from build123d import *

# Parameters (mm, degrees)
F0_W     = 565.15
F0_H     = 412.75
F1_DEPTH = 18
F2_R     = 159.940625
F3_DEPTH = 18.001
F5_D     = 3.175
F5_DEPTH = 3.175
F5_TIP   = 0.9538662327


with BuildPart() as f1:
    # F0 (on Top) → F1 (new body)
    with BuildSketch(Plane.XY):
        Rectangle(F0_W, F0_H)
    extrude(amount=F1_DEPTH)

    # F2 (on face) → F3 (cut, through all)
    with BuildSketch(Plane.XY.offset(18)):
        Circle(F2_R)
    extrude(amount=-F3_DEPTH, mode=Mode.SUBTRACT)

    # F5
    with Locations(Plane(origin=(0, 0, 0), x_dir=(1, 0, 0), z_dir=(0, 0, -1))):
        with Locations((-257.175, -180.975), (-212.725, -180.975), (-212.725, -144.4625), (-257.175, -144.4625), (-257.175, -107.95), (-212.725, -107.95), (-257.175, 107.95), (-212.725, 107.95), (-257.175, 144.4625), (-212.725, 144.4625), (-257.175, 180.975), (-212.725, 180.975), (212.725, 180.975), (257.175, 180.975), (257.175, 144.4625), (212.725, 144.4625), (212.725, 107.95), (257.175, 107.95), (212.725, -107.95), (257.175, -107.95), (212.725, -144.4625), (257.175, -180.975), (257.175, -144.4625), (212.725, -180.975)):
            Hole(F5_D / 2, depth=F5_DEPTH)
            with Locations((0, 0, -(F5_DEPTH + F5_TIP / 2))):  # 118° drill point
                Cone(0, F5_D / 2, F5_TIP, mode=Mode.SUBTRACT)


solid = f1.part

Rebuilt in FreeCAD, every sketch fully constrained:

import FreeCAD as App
import Part
import Sketcher
Q = App.Units.Quantity


def add_polygon(sketch, points):
    """Adds a closed chain of lines whose ends are joined by coincident constraints."""
    first, n = sketch.GeometryCount, len(points)
    for a, b in zip(points, points[1:] + points[:1]):
        sketch.addGeometry(Part.LineSegment(App.Vector(*a, 0), App.Vector(*b, 0)), False)
    for i in range(n):
        sketch.addConstraint(Sketcher.Constraint("Coincident", first + i, 2, first + (i + 1) % n, 1))

doc = App.newDocument("Part")
body = doc.addObject("PartDesign::Body", "Body")

# Sketch on XY plane
sketch1 = doc.addObject("Sketcher::SketchObject", "Sketch")
body.addObject(sketch1)
sketch1.AttachmentSupport = (doc.XY_Plane, [""])
sketch1.MapMode = "FlatFace"
add_polygon(sketch1, [(-282.575, 206.375), (-282.575, -206.375), (282.575, -206.375), (282.575, 206.375)])  # lines 0-3
sketch1.addConstraint(Sketcher.Constraint("Vertical", 0))
sketch1.addConstraint(Sketcher.Constraint("Horizontal", 1))
sketch1.addConstraint(Sketcher.Constraint("Vertical", 2))
sketch1.addConstraint(Sketcher.Constraint("Horizontal", 3))
sketch1.addConstraint(Sketcher.Constraint("Symmetric", 0, 2, 2, 2, -1, 1))
sketch1.addConstraint(Sketcher.Constraint("DistanceX", 1, 1, 1, 2, Q("22.25 in")))
sketch1.addConstraint(Sketcher.Constraint("DistanceY", 0, 2, 0, 1, Q("16.25 in")))
pad1 = doc.addObject("PartDesign::Pad", "Pad")
body.addObject(pad1)
pad1.Profile = sketch1
pad1.Length = 18

# Sketch on XY plane
sketch2 = doc.addObject("Sketcher::SketchObject", "Sketch001")
body.addObject(sketch2)
sketch2.AttachmentSupport = (doc.XY_Plane, [""])
sketch2.MapMode = "FlatFace"
sketch2.AttachmentOffset = App.Placement(App.Vector(0, 0, 18), App.Rotation())
sketch2.addGeometry(Part.Circle(App.Vector(0, 0, 0), App.Vector(0, 0, 1), 159.940625), False)
sketch2.addConstraint(Sketcher.Constraint("Coincident", 0, 3, -1, 1))
sketch2.addConstraint(Sketcher.Constraint("Diameter", 0, Q("12.59375 in")))
pocket1 = doc.addObject("PartDesign::Pocket", "Pocket")
body.addObject(pocket1)
pocket1.Profile = sketch2
pocket1.Type = "ThroughAll"

# Sketch on XY plane
sketch3 = doc.addObject("Sketcher::SketchObject", "Sketch002")
body.addObject(sketch3)
sketch3.AttachmentSupport = (doc.XY_Plane, [""])
sketch3.MapMode = "FlatFace"
sketch3.addGeometry(Part.Circle(App.Vector(-257.175, 180.975, 0), App.Vector(0, 0, 1), 1.5875), False)
sketch3.addGeometry(Part.Circle(App.Vector(-212.725, 180.975, 0), App.Vector(0, 0, 1), 1.5875), False)
sketch3.addGeometry(Part.Circle(App.Vector(-212.725, 144.4625, 0), App.Vector(0, 0, 1), 1.5875), False)
sketch3.addGeometry(Part.Circle(App.Vector(-257.175, 144.4625, 0), App.Vector(0, 0, 1), 1.5875), False)
sketch3.addGeometry(Part.Circle(App.Vector(-257.175, 107.95, 0), App.Vector(0, 0, 1), 1.5875), False)
sketch3.addGeometry(Part.Circle(App.Vector(-212.725, 107.95, 0), App.Vector(0, 0, 1), 1.5875), False)
sketch3.addGeometry(Part.Circle(App.Vector(-257.175, -107.95, 0), App.Vector(0, 0, 1), 1.5875), False)
sketch3.addGeometry(Part.Circle(App.Vector(-212.725, -107.95, 0), App.Vector(0, 0, 1), 1.5875), False)
sketch3.addGeometry(Part.Circle(App.Vector(-257.175, -144.4625, 0), App.Vector(0, 0, 1), 1.5875), False)
sketch3.addGeometry(Part.Circle(App.Vector(-212.725, -144.4625, 0), App.Vector(0, 0, 1), 1.5875), False)
sketch3.addGeometry(Part.Circle(App.Vector(-257.175, -180.975, 0), App.Vector(0, 0, 1), 1.5875), False)
sketch3.addGeometry(Part.Circle(App.Vector(-212.725, -180.975, 0), App.Vector(0, 0, 1), 1.5875), False)
sketch3.addGeometry(Part.Circle(App.Vector(212.725, -180.975, 0), App.Vector(0, 0, 1), 1.5875), False)
sketch3.addGeometry(Part.Circle(App.Vector(257.175, -180.975, 0), App.Vector(0, 0, 1), 1.5875), False)
sketch3.addGeometry(Part.Circle(App.Vector(257.175, -144.4625, 0), App.Vector(0, 0, 1), 1.5875), False)
sketch3.addGeometry(Part.Circle(App.Vector(212.725, -144.4625, 0), App.Vector(0, 0, 1), 1.5875), False)
sketch3.addGeometry(Part.Circle(App.Vector(212.725, -107.95, 0), App.Vector(0, 0, 1), 1.5875), False)
sketch3.addGeometry(Part.Circle(App.Vector(257.175, -107.95, 0), App.Vector(0, 0, 1), 1.5875), False)
sketch3.addGeometry(Part.Circle(App.Vector(212.725, 107.95, 0), App.Vector(0, 0, 1), 1.5875), False)
sketch3.addGeometry(Part.Circle(App.Vector(257.175, 107.95, 0), App.Vector(0, 0, 1), 1.5875), False)
sketch3.addGeometry(Part.Circle(App.Vector(212.725, 144.4625, 0), App.Vector(0, 0, 1), 1.5875), False)
sketch3.addGeometry(Part.Circle(App.Vector(257.175, 180.975, 0), App.Vector(0, 0, 1), 1.5875), False)
sketch3.addGeometry(Part.Circle(App.Vector(257.175, 144.4625, 0), App.Vector(0, 0, 1), 1.5875), False)
sketch3.addGeometry(Part.Circle(App.Vector(212.725, 180.975, 0), App.Vector(0, 0, 1), 1.5875), False)
sketch3.addConstraint(Sketcher.Constraint("Equal", 0, 1))
sketch3.addConstraint(Sketcher.Constraint("Equal", 1, 2))
sketch3.addConstraint(Sketcher.Constraint("Equal", 2, 3))
sketch3.addConstraint(Sketcher.Constraint("Equal", 3, 4))
sketch3.addConstraint(Sketcher.Constraint("Equal", 4, 5))
sketch3.addConstraint(Sketcher.Constraint("Equal", 5, 6))
sketch3.addConstraint(Sketcher.Constraint("Equal", 6, 7))
sketch3.addConstraint(Sketcher.Constraint("Equal", 7, 8))
sketch3.addConstraint(Sketcher.Constraint("Equal", 8, 9))
sketch3.addConstraint(Sketcher.Constraint("Equal", 9, 10))
sketch3.addConstraint(Sketcher.Constraint("Equal", 10, 11))
sketch3.addConstraint(Sketcher.Constraint("Equal", 11, 12))
sketch3.addConstraint(Sketcher.Constraint("Equal", 12, 13))
sketch3.addConstraint(Sketcher.Constraint("Equal", 13, 14))
sketch3.addConstraint(Sketcher.Constraint("Equal", 14, 15))
sketch3.addConstraint(Sketcher.Constraint("Equal", 15, 16))
sketch3.addConstraint(Sketcher.Constraint("Equal", 16, 17))
sketch3.addConstraint(Sketcher.Constraint("Equal", 17, 18))
sketch3.addConstraint(Sketcher.Constraint("Equal", 18, 19))
sketch3.addConstraint(Sketcher.Constraint("Equal", 19, 20))
sketch3.addConstraint(Sketcher.Constraint("Equal", 20, 21))
sketch3.addConstraint(Sketcher.Constraint("Equal", 21, 22))
sketch3.addConstraint(Sketcher.Constraint("Equal", 22, 23))
sketch3.addConstraint(Sketcher.Constraint("Symmetric", 1, 3, 12, 3, -1, 1))
sketch3.addConstraint(Sketcher.Constraint("Symmetric", 0, 3, 13, 3, -1, 1))
sketch3.addConstraint(Sketcher.Constraint("Symmetric", 3, 3, 14, 3, -1, 1))
sketch3.addConstraint(Sketcher.Constraint("Symmetric", 2, 3, 15, 3, -1, 1))
sketch3.addConstraint(Sketcher.Constraint("Symmetric", 5, 3, 16, 3, -1, 1))
sketch3.addConstraint(Sketcher.Constraint("Symmetric", 4, 3, 17, 3, -1, 1))
sketch3.addConstraint(Sketcher.Constraint("Symmetric", 7, 3, 18, 3, -1, 1))
sketch3.addConstraint(Sketcher.Constraint("Symmetric", 6, 3, 19, 3, -1, 1))
sketch3.addConstraint(Sketcher.Constraint("Symmetric", 9, 3, 20, 3, -1, 1))
sketch3.addConstraint(Sketcher.Constraint("Symmetric", 10, 3, 21, 3, -1, 1))
sketch3.addConstraint(Sketcher.Constraint("Symmetric", 8, 3, 22, 3, -1, 1))
sketch3.addConstraint(Sketcher.Constraint("Symmetric", 11, 3, 23, 3, -1, 1))
sketch3.addConstraint(Sketcher.Constraint("Symmetric", 11, 3, 12, 3, -2))
sketch3.addConstraint(Sketcher.Constraint("Symmetric", 10, 3, 13, 3, -2))
sketch3.addConstraint(Sketcher.Constraint("Symmetric", 8, 3, 14, 3, -2))
sketch3.addConstraint(Sketcher.Constraint("Symmetric", 9, 3, 15, 3, -2))
sketch3.addConstraint(Sketcher.Constraint("Symmetric", 7, 3, 16, 3, -2))
sketch3.addConstraint(Sketcher.Constraint("Symmetric", 6, 3, 17, 3, -2))
sketch3.addConstraint(Sketcher.Constraint("Horizontal", 0, 3, 1, 3))
sketch3.addConstraint(Sketcher.Constraint("Horizontal", 2, 3, 3, 3))
sketch3.addConstraint(Sketcher.Constraint("Horizontal", 4, 3, 5, 3))
sketch3.addConstraint(Sketcher.Constraint("Vertical", 1, 3, 2, 3))
sketch3.addConstraint(Sketcher.Constraint("Vertical", 0, 3, 3, 3))
sketch3.addConstraint(Sketcher.Constraint("Vertical", 3, 3, 4, 3))
sketch3.addConstraint(Sketcher.Constraint("Vertical", 2, 3, 5, 3))
sketch3.addConstraint(Sketcher.Constraint("Diameter", 0, Q("0.125 in")))
sketch3.addConstraint(Sketcher.Constraint("DistanceY", 6, 3, 4, 3, Q("8.5 in")))
sketch3.addConstraint(Sketcher.Constraint("DistanceX", 10, 3, 12, 3, Q("18.5 in")))
sketch3.addConstraint(Sketcher.Constraint("DistanceX", 0, 3, 1, 3, Q("1.75 in")))
sketch3.addConstraint(Sketcher.Constraint("DistanceY", -1, 1, 0, 3, Q("7.125 in")))
sketch3.addConstraint(Sketcher.Constraint("DistanceY", -1, 1, 2, 3, Q("5.6875 in")))
doc.recompute()
hole = doc.addObject("PartDesign::Hole", "Hole")
body.addObject(hole)
hole.Profile = sketch3
hole.ThreadType = "None"
hole.Diameter = Q("0.125 in")
hole.DepthType = "Dimension"
hole.Depth = Q("0.125 in")
hole.DrillPoint = "Angled"
hole.DrillPointAngle = 118
hole.Reversed = True

doc.recompute()
